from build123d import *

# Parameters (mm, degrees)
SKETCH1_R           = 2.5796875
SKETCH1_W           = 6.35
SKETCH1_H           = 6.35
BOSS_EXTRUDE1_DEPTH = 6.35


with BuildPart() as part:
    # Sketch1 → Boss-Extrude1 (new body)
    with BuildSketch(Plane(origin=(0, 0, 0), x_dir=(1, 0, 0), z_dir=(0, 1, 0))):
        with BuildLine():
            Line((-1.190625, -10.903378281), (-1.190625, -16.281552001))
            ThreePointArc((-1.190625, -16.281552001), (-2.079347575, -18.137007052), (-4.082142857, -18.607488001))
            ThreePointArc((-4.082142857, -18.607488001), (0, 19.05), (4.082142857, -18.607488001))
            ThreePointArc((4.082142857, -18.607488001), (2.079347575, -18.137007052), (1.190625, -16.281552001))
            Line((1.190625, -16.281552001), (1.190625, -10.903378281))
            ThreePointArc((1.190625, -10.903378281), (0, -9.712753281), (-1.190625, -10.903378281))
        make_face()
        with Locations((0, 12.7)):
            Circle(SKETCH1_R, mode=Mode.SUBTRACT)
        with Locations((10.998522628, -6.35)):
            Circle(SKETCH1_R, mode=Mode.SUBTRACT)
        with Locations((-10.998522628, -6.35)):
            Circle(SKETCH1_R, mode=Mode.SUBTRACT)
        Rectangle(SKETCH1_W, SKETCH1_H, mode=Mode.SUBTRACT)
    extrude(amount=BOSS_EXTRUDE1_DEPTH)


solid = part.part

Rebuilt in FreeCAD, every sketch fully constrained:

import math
import FreeCAD as App
import Part
import Sketcher

V = App.Vector
Q = App.Units.Quantity

doc = App.newDocument("Part")
body = doc.addObject("PartDesign::Body", "Body")

# Sketch on XZ plane
sketch1 = body.newObject("Sketcher::SketchObject", "Sketch")
sketch1.AttachmentSupport = (doc.getObject("XZ_Plane"), [""])
sketch1.MapMode = "FlatFace"
sketch1.addGeometry(Part.LineSegment(V(-1.190625, 16.281552, 0), V(-1.190625, 10.903378, 0)), False)
sketch1.addGeometry(Part.ArcOfCircle(Part.Circle(V(0, 10.903378, 0), V(0, 0, 1), 1.190625), math.radians(180), math.radians(360)), False)
sketch1.addGeometry(Part.LineSegment(V(1.190625, 10.903378, 0), V(1.190625, 16.281552, 0)), False)
sketch1.addGeometry(Part.ArcOfCircle(Part.Circle(V(3.571875, 16.281552, 0), V(0, 0, 1), 2.38125), math.radians(77.626375), math.radians(180)), False)
sketch1.addGeometry(Part.ArcOfCircle(Part.Circle(V(0, 0, 0), V(0, 0, 1), 19.05), math.radians(102.373625), math.radians(437.626375)), False)
sketch1.addGeometry(Part.ArcOfCircle(Part.Circle(V(-3.571875, 16.281552, 0), V(0, 0, 1), 2.38125), math.radians(0), math.radians(102.373625)), False)
sketch1.addGeometry(Part.Circle(V(10.998523, 6.35, 0), V(0, 0, 1), 2.579687), False)
sketch1.addGeometry(Part.Circle(V(-10.998523, 6.35, 0), V(0, 0, 1), 2.579687), False)
sketch1.addGeometry(Part.LineSegment(V(-3.175, 3.175, 0), V(-3.175, -3.175, 0)), False)
sketch1.addGeometry(Part.LineSegment(V(-3.175, -3.175, 0), V(3.175, -3.175, 0)), False)
sketch1.addGeometry(Part.LineSegment(V(3.175, -3.175, 0), V(3.175, 3.175, 0)), False)
sketch1.addGeometry(Part.LineSegment(V(3.175, 3.175, 0), V(-3.175, 3.175, 0)), False)
sketch1.addGeometry(Part.Circle(V(0, -12.7, 0), V(0, 0, 1), 2.579687), False)
sketch1.addConstraint(Sketcher.Constraint("Tangent", 0, 2, 1, 1))
sketch1.addConstraint(Sketcher.Constraint("Tangent", 1, 2, 2, 1))
sketch1.addConstraint(Sketcher.Constraint("Tangent", 2, 2, 3, 2))
sketch1.addConstraint(Sketcher.Constraint("Tangent", 3, 1, 4, 2))
sketch1.addConstraint(Sketcher.Constraint("Tangent", 4, 1, 5, 2))
sketch1.addConstraint(Sketcher.Constraint("Tangent", 5, 1, 0, 1))
sketch1.addConstraint(Sketcher.Constraint("Coincident", 8, 2, 9, 1))
sketch1.addConstraint(Sketcher.Constraint("Coincident", 9, 2, 10, 1))
sketch1.addConstraint(Sketcher.Constraint("Coincident", 10, 2, 11, 1))
sketch1.addConstraint(Sketcher.Constraint("Coincident", 11, 2, 8, 1))
sketch1.addConstraint(Sketcher.Constraint("Vertical", 0))
sketch1.addConstraint(Sketcher.Constraint("Vertical", 2))
sketch1.addConstraint(Sketcher.Constraint("Vertical", 8))
sketch1.addConstraint(Sketcher.Constraint("Horizontal", 9))
sketch1.addConstraint(Sketcher.Constraint("Vertical", 10))
sketch1.addConstraint(Sketcher.Constraint("Horizontal", 11))
sketch1.addConstraint(Sketcher.Constraint("Coincident", 4, 3, -1, 1))
sketch1.addConstraint(Sketcher.Constraint("Equal", 3, 5))
sketch1.addConstraint(Sketcher.Constraint("Equal", 6, 7))
sketch1.addConstraint(Sketcher.Constraint("Equal", 7, 12))
sketch1.addConstraint(Sketcher.Constraint("Symmetric", 8, 2, 10, 2, -1, 1))
sketch1.addConstraint(Sketcher.Constraint("Symmetric", 6, 3, 7, 3, -2))
sketch1.addConstraint(Sketcher.Constraint("PointOnObject", 1, 3, -2))
sketch1.addConstraint(Sketcher.Constraint("PointOnObject", 12, 3, -2))
sketch1.addConstraint(Sketcher.Constraint("Equal", 11, 8))
sketch1.addConstraint(Sketcher.Constraint("Radius", 4, Q("0.75 in")))
sketch1.addConstraint(Sketcher.Constraint("Diameter", 6, Q("0.203125 in")))
sketch1.addConstraint(Sketcher.Constraint("Radius", 1, Q("0.046875 in")))
sketch1.addConstraint(Sketcher.Constraint("Radius", 3, Q("0.09375 in")))
sketch1.addConstraint(Sketcher.Constraint("DistanceX", 9, 1, 9, 2, Q("0.25 in")))
sketch1.addConstraint(Sketcher.Constraint("DistanceY", 12, 3, -1, 1, Q("0.5 in")))
sketch1.addConstraint(Sketcher.Constraint("DistanceY", -1, 1, 6, 3, Q("0.25 in")))
sketch1.addConstraint(Sketcher.Constraint("DistanceY", 0, 2, 0, 1, Q("5.378174 mm")))
sketch1.addConstraint(Sketcher.Constraint("DistanceX", -1, 1, 6, 3, Q("10.998523 mm")))
pad1 = body.newObject("PartDesign::Pad", "Pad")
pad1.Profile = sketch1
pad1.Length = Q("0.25 in")
pad1.Reversed = True

doc.recompute()
